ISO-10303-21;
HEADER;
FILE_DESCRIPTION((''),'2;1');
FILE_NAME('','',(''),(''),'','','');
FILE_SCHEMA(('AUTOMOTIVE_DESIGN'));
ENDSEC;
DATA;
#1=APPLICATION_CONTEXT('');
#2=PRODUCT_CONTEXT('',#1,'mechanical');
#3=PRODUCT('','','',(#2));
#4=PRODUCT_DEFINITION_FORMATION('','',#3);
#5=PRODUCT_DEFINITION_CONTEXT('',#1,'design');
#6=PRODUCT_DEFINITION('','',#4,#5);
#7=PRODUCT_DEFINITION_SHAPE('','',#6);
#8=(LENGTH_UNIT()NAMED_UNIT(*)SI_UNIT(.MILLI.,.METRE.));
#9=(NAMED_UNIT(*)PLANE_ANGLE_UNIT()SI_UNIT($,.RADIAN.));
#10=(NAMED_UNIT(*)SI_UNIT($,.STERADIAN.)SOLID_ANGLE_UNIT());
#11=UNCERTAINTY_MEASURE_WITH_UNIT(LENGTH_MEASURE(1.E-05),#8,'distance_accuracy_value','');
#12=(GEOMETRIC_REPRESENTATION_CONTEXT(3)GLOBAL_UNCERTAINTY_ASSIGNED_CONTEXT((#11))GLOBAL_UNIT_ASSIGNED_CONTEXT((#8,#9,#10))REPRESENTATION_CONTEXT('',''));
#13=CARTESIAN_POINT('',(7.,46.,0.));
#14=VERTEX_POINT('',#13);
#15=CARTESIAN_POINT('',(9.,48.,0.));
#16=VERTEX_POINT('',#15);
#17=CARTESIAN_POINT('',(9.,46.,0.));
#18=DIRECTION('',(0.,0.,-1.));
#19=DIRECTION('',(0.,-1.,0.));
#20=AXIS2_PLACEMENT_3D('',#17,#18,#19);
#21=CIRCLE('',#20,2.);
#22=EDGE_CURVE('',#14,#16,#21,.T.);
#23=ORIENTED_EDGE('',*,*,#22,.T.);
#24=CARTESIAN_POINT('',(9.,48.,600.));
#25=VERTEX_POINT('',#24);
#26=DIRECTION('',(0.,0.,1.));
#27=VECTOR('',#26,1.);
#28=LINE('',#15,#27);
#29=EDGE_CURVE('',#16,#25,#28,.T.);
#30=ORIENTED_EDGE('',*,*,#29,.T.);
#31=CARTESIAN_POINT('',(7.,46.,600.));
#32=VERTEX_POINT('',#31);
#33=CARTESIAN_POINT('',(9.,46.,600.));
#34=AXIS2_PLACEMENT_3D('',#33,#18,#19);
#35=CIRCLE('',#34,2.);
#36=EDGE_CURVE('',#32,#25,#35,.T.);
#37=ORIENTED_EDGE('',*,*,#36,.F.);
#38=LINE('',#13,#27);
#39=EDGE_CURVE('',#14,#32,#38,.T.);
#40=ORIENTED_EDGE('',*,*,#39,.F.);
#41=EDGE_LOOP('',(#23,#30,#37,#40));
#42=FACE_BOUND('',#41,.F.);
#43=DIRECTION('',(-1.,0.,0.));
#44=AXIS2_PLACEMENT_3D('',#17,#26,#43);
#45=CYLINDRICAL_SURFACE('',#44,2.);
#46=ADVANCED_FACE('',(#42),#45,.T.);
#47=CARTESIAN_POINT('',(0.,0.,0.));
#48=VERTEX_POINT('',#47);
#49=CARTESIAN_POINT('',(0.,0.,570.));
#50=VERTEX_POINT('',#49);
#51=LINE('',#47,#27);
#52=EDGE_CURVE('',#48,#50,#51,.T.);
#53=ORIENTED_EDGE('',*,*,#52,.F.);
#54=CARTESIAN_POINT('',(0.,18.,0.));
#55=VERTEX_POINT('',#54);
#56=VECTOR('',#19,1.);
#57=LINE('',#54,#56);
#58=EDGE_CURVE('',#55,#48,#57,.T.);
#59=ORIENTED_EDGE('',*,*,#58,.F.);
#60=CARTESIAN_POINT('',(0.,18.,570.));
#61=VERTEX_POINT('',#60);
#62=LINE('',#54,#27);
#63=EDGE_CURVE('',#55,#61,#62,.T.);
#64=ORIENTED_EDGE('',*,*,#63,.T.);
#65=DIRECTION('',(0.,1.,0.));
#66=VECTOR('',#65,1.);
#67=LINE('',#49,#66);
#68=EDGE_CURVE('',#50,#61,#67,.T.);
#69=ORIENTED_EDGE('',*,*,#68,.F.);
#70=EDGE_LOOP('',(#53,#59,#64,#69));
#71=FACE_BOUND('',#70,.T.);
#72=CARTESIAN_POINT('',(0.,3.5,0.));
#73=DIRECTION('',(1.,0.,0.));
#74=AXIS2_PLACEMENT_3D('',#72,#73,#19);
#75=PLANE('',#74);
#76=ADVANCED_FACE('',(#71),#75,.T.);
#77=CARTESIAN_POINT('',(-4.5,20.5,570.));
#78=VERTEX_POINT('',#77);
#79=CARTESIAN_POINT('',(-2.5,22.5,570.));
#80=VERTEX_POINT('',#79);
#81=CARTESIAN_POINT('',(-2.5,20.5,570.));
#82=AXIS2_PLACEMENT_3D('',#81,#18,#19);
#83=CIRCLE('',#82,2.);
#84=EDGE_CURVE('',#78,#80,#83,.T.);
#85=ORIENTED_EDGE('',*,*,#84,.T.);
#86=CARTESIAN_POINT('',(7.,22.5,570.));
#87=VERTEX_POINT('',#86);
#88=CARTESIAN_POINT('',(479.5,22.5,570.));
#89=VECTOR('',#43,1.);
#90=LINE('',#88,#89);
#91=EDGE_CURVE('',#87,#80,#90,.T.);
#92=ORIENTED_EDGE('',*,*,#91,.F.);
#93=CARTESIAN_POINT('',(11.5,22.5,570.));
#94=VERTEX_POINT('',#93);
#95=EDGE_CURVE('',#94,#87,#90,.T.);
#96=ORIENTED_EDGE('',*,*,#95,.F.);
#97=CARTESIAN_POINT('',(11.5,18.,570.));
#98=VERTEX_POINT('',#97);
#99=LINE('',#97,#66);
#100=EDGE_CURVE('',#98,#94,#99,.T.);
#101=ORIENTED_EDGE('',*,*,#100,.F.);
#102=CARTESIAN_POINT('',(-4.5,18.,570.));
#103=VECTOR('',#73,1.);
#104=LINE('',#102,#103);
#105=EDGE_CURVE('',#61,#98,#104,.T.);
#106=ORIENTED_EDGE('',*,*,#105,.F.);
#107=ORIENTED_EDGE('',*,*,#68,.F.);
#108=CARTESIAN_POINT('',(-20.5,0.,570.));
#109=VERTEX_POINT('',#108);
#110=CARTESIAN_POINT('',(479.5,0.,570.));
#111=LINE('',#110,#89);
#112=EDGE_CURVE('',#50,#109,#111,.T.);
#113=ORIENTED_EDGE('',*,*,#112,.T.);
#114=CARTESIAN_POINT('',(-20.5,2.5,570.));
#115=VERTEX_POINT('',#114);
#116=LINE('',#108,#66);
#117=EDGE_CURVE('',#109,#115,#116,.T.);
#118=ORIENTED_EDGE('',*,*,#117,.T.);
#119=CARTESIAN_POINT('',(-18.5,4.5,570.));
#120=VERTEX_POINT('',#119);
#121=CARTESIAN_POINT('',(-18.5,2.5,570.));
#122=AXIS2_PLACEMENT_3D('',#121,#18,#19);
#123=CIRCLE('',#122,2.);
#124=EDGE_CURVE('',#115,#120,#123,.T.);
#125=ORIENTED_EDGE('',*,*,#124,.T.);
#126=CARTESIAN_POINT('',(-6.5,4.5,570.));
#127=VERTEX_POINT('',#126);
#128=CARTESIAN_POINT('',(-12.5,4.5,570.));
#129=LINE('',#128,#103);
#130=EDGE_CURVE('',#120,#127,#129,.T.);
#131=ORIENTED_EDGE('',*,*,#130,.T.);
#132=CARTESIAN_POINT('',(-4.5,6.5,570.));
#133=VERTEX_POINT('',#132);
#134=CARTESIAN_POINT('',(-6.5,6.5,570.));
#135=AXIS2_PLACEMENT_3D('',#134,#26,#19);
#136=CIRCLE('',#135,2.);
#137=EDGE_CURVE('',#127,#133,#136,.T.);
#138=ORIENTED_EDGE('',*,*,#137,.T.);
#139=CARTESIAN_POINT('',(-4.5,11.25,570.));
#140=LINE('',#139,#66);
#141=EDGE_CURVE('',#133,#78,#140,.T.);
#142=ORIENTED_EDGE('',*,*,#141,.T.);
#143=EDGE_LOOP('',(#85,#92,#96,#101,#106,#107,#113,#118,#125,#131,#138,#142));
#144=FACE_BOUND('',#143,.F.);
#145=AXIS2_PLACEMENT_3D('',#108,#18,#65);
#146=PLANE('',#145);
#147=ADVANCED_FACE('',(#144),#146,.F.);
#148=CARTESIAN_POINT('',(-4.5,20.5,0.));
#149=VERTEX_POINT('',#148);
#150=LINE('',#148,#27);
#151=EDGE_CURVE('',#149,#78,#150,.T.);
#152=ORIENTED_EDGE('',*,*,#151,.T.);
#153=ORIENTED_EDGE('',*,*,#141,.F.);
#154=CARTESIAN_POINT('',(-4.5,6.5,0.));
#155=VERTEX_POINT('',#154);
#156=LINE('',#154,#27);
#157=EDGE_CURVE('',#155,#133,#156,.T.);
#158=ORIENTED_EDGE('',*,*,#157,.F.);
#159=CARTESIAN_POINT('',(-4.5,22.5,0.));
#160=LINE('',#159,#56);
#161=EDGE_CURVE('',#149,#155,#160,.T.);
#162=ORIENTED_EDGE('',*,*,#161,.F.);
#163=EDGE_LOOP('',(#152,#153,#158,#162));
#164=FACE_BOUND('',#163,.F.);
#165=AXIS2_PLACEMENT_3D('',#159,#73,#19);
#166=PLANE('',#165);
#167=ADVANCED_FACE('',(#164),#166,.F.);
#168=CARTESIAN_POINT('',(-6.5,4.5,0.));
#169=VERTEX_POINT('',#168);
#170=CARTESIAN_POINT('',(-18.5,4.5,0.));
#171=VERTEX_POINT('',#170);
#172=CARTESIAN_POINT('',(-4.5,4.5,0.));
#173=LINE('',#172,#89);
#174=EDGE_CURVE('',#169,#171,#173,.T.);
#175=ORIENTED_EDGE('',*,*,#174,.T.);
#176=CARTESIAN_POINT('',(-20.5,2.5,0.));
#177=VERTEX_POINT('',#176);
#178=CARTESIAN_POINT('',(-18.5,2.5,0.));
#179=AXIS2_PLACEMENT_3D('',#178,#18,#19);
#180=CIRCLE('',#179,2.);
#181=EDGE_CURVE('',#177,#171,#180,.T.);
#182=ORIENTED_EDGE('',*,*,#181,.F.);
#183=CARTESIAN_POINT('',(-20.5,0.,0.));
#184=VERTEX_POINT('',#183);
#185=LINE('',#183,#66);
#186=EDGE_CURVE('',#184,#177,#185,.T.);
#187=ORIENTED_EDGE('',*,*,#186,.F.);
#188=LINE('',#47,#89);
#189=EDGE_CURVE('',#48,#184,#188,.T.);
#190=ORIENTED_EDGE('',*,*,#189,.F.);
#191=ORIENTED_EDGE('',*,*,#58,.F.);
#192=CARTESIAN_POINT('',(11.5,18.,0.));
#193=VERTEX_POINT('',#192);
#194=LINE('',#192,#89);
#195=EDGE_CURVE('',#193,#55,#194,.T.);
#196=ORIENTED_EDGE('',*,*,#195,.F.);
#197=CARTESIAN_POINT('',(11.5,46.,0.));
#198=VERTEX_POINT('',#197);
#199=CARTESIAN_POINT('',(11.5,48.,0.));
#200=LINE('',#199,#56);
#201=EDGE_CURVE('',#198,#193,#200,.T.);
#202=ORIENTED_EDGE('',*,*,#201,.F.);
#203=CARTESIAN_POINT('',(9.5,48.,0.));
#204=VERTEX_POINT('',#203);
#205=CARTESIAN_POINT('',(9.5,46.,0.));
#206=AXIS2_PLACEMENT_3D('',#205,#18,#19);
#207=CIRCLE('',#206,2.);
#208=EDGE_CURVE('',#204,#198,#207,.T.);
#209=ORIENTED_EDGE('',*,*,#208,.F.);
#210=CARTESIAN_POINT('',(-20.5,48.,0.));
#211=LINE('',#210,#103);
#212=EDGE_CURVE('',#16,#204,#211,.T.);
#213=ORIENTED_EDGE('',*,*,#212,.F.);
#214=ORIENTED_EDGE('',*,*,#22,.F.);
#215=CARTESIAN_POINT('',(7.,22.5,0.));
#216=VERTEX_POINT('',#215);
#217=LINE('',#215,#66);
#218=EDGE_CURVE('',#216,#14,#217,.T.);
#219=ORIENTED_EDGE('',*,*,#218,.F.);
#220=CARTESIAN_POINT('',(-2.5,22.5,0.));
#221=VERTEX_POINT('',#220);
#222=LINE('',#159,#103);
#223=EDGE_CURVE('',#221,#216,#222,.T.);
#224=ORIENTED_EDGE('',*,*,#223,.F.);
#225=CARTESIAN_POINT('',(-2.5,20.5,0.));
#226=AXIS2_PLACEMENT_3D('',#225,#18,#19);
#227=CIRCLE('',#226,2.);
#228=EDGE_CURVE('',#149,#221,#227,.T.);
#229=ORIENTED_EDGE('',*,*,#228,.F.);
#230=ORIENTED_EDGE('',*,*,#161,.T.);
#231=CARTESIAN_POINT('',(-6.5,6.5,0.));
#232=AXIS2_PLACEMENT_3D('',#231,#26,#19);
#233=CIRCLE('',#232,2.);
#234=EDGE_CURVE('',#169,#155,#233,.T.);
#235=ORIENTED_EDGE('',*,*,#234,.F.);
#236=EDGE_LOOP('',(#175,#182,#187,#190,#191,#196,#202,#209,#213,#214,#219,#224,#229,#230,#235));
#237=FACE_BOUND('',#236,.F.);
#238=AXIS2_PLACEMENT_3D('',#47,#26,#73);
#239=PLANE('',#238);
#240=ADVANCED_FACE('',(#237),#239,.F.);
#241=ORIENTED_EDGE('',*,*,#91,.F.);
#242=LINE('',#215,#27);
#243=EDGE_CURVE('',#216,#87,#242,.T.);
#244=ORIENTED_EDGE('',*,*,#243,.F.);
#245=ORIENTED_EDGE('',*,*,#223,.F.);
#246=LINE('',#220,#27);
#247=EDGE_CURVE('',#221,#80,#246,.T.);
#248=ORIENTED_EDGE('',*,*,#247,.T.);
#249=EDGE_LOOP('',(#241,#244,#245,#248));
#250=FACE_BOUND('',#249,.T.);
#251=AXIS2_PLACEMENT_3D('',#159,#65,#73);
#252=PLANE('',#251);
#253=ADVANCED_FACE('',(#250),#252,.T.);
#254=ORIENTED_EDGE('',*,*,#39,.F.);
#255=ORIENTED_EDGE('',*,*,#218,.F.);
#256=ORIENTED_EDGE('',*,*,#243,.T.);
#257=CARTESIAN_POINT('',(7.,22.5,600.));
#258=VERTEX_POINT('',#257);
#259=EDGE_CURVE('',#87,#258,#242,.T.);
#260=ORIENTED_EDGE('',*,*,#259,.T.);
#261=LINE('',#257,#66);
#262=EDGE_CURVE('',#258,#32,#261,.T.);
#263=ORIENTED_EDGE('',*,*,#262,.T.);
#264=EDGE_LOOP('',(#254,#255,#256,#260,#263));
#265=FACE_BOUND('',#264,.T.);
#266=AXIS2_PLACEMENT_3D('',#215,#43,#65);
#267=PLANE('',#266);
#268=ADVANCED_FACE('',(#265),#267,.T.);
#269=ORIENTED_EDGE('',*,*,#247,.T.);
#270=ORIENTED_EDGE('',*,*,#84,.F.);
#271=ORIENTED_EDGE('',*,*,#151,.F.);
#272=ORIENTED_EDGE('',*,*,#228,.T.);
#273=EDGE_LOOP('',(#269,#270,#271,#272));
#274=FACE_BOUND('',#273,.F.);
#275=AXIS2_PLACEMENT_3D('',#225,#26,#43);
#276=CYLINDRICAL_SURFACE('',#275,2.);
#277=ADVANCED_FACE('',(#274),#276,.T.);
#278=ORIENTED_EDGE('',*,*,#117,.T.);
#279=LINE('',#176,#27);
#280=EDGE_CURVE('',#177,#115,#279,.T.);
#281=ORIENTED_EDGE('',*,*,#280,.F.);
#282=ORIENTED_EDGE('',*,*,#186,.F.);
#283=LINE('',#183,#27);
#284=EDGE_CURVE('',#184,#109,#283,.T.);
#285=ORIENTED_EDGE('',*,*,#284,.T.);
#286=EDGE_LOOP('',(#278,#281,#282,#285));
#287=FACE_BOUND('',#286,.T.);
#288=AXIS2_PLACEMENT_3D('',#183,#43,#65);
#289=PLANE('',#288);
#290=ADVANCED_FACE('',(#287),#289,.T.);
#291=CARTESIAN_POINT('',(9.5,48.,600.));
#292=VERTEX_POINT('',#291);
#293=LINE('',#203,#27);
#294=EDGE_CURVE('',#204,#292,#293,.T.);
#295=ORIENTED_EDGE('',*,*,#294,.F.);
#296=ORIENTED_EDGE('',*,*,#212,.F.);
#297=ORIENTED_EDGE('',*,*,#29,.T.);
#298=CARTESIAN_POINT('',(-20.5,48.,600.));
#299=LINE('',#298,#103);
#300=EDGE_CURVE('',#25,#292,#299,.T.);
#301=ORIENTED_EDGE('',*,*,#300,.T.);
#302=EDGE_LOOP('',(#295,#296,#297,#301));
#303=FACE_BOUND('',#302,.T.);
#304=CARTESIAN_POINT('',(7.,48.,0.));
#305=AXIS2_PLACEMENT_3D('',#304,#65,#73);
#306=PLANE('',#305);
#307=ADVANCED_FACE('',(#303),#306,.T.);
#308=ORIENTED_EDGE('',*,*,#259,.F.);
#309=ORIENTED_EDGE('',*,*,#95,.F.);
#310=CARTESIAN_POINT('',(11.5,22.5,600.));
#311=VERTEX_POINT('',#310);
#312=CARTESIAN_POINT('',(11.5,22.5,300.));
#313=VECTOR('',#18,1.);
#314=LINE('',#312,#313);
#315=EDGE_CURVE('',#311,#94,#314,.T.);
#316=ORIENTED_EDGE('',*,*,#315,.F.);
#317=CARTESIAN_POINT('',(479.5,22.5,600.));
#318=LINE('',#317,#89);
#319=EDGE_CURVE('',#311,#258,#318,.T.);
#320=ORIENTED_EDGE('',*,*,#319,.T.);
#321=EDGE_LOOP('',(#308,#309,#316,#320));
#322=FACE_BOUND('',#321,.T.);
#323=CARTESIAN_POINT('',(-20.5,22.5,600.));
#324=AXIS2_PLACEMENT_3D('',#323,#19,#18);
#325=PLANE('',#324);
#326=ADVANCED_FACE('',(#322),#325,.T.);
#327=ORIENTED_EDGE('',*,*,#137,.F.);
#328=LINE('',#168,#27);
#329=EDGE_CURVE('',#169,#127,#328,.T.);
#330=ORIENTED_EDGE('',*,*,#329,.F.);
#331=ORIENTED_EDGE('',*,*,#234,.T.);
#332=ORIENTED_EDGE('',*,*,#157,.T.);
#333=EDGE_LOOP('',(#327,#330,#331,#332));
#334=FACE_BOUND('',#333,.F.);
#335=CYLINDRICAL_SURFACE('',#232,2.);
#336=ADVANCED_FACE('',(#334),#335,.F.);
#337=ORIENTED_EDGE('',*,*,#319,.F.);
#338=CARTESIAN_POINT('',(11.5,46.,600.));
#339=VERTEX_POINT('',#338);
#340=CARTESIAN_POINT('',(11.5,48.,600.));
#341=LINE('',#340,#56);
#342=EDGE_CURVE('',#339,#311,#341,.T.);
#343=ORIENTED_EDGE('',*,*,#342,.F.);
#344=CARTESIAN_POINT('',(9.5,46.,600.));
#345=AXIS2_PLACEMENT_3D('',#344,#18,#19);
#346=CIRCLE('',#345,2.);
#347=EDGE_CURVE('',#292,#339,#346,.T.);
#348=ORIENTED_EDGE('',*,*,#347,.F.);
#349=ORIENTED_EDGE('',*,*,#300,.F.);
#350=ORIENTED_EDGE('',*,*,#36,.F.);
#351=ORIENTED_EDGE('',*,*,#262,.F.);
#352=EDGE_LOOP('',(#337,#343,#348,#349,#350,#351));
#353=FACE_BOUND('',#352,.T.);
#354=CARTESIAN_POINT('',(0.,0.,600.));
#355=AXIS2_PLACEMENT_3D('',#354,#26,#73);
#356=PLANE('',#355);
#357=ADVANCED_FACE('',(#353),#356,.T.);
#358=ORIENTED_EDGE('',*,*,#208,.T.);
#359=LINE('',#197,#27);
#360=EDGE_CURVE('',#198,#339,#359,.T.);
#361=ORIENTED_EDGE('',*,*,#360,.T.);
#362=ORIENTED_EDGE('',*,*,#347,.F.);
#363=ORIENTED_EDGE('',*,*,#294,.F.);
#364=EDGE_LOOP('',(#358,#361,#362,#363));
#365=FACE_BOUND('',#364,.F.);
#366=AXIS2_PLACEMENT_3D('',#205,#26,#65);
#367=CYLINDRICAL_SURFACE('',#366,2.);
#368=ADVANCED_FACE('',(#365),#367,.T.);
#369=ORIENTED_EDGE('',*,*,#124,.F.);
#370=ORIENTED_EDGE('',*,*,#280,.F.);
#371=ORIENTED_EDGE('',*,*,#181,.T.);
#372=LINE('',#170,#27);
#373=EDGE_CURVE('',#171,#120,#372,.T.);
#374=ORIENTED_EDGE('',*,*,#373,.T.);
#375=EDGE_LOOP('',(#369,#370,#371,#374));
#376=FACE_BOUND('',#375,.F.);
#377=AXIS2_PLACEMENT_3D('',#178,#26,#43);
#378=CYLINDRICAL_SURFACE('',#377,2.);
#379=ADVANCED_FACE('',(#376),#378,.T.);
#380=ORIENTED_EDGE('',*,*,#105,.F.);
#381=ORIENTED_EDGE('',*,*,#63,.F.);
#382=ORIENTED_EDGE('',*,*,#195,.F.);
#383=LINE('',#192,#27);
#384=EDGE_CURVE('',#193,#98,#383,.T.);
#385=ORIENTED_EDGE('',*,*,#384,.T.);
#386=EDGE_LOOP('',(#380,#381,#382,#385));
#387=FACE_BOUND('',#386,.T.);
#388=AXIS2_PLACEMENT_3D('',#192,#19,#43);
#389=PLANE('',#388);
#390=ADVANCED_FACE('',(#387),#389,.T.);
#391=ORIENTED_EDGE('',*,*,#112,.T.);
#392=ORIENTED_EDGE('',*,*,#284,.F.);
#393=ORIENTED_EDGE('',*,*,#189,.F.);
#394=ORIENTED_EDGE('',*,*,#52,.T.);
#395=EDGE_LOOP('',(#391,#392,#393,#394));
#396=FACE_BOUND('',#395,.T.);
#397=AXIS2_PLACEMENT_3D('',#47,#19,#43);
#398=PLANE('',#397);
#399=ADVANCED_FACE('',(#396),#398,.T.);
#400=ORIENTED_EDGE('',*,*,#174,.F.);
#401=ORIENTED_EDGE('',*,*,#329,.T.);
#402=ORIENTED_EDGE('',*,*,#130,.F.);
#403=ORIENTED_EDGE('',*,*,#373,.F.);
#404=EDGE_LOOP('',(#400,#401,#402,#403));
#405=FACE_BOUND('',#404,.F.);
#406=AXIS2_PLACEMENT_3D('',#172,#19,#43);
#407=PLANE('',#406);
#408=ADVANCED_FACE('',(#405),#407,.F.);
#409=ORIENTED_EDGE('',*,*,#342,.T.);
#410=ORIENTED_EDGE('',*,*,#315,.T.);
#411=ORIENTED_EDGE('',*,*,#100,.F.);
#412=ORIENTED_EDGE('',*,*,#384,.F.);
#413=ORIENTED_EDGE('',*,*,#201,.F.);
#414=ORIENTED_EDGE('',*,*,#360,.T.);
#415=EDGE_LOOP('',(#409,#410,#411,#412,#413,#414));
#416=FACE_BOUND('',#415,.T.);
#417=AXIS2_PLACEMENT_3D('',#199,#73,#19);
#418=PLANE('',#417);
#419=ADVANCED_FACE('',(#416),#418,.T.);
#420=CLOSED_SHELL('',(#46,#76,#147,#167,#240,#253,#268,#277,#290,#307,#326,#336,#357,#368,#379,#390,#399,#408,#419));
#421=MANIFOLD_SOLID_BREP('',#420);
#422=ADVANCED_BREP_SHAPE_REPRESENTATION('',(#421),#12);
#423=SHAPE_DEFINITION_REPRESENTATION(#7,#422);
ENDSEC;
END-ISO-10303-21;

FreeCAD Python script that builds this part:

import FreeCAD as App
import Part
import Sketcher
from FreeCAD import Vector


def edges_at(feature, points):
    """Names of the edges that pass closest to the given points."""
    edges = feature.Shape.Edges
    near = lambda p: min(range(len(edges)), key=lambda i: edges[i].distToShape(Part.Vertex(*p))[0])
    return sorted({f"Edge{near(p) + 1}" for p in points})


def add_polygon(sketch, points):
    """Adds a closed chain of lines whose ends are joined by coincident constraints."""
    first, n = sketch.GeometryCount, len(points)
    for a, b in zip(points, points[1:] + points[:1]):
        sketch.addGeometry(Part.LineSegment(App.Vector(*a, 0), App.Vector(*b, 0)), False)
    for i in range(n):
        sketch.addConstraint(Sketcher.Constraint("Coincident", first + i, 2, first + (i + 1) % n, 1))

doc = App.newDocument("Part")
body = doc.addObject("PartDesign::Body", "Body")

sketch1 = doc.addObject("Sketcher::SketchObject", "Sketch")
body.addObject(sketch1)
sketch1.AttachmentSupport = (doc.XY_Plane, [""])
sketch1.MapMode = "FlatFace"
add_polygon(sketch1, [(-20.5, 0), (0, 0), (0, 18), (11.5, 18), (11.5, 48), (7, 48), (7, 22.5), (-4.5, 22.5), (-4.5, 4.5), (-20.5, 4.5)])
sketch1.addConstraint([
    Sketcher.Constraint("Horizontal", 0),
    Sketcher.Constraint("Vertical", 1),
    Sketcher.Constraint("Horizontal", 2),
    Sketcher.Constraint("Vertical", 3),
    Sketcher.Constraint("Horizontal", 4),
    Sketcher.Constraint("Vertical", 5),
    Sketcher.Constraint("Horizontal", 6),
    Sketcher.Constraint("Vertical", 7),
    Sketcher.Constraint("Horizontal", 8),
    Sketcher.Constraint("Vertical", 9),
    Sketcher.Constraint("Coincident", 0, 2, -1, 1),
    Sketcher.Constraint("Equal", 2, 6),
    Sketcher.Constraint("Equal", 1, 7),
    Sketcher.Constraint("Equal", 4, 9),
    Sketcher.Constraint("DistanceX", 8, 2, 8, 1, 16.0),
    Sketcher.Constraint("DistanceY", 3, 1, 3, 2, 30.0),
    Sketcher.Constraint("DistanceX", 0, 1, 0, 2, 20.5),
    Sketcher.Constraint("DistanceX", 2, 1, 2, 2, 11.5),
    Sketcher.Constraint("DistanceY", -1, 1, 3, 2, 48.0),
])
pad1 = doc.addObject("PartDesign::Pad", "Pad")
body.addObject(pad1)
pad1.Profile = sketch1
pad1.Length = 600

sketch2 = doc.addObject("Sketcher::SketchObject", "Sketch001")
body.addObject(sketch2)
sketch2.AttachmentSupport = (doc.YZ_Plane, [""])
sketch2.MapMode = "FlatFace"
sketch2.AttachmentOffset = App.Placement(Vector(0, 0, -20.5), App.Rotation())
add_polygon(sketch2, [(0, 600), (22, 600), (22, 570), (0, 570)])
sketch2.addConstraint([
    Sketcher.Constraint("Horizontal", 0),
    Sketcher.Constraint("Vertical", 1),
    Sketcher.Constraint("Horizontal", 2),
    Sketcher.Constraint("Vertical", 3),
    Sketcher.Constraint("PointOnObject", 2, 2, -2),
    Sketcher.Constraint("DistanceY", 1, 2, 1, 1, 30.0),
    Sketcher.Constraint("DistanceX", 0, 1, 0, 2, 22.5),
    Sketcher.Constraint("DistanceY", -1, 1, 0, 2, 600.0),
])
pocket1 = doc.addObject("PartDesign::Pocket", "Pocket")
body.addObject(pocket1)
pocket1.Profile = sketch2
pocket1.Length = 1000
pocket1.Midplane = True
doc.recompute()

fillet = doc.addObject("PartDesign::Fillet", "Fillet")
body.addObject(fillet)
fillet.Base = (pocket1, edges_at(pocket1, [
    (-20.5, 4.5, 285),
    (-4.5, 22.5, 285),
    (7, 48, 300),
    (11.5, 48, 300),
    (-4.5, 4.5, 285),
]))
fillet.Radius = 2

doc.recompute()
